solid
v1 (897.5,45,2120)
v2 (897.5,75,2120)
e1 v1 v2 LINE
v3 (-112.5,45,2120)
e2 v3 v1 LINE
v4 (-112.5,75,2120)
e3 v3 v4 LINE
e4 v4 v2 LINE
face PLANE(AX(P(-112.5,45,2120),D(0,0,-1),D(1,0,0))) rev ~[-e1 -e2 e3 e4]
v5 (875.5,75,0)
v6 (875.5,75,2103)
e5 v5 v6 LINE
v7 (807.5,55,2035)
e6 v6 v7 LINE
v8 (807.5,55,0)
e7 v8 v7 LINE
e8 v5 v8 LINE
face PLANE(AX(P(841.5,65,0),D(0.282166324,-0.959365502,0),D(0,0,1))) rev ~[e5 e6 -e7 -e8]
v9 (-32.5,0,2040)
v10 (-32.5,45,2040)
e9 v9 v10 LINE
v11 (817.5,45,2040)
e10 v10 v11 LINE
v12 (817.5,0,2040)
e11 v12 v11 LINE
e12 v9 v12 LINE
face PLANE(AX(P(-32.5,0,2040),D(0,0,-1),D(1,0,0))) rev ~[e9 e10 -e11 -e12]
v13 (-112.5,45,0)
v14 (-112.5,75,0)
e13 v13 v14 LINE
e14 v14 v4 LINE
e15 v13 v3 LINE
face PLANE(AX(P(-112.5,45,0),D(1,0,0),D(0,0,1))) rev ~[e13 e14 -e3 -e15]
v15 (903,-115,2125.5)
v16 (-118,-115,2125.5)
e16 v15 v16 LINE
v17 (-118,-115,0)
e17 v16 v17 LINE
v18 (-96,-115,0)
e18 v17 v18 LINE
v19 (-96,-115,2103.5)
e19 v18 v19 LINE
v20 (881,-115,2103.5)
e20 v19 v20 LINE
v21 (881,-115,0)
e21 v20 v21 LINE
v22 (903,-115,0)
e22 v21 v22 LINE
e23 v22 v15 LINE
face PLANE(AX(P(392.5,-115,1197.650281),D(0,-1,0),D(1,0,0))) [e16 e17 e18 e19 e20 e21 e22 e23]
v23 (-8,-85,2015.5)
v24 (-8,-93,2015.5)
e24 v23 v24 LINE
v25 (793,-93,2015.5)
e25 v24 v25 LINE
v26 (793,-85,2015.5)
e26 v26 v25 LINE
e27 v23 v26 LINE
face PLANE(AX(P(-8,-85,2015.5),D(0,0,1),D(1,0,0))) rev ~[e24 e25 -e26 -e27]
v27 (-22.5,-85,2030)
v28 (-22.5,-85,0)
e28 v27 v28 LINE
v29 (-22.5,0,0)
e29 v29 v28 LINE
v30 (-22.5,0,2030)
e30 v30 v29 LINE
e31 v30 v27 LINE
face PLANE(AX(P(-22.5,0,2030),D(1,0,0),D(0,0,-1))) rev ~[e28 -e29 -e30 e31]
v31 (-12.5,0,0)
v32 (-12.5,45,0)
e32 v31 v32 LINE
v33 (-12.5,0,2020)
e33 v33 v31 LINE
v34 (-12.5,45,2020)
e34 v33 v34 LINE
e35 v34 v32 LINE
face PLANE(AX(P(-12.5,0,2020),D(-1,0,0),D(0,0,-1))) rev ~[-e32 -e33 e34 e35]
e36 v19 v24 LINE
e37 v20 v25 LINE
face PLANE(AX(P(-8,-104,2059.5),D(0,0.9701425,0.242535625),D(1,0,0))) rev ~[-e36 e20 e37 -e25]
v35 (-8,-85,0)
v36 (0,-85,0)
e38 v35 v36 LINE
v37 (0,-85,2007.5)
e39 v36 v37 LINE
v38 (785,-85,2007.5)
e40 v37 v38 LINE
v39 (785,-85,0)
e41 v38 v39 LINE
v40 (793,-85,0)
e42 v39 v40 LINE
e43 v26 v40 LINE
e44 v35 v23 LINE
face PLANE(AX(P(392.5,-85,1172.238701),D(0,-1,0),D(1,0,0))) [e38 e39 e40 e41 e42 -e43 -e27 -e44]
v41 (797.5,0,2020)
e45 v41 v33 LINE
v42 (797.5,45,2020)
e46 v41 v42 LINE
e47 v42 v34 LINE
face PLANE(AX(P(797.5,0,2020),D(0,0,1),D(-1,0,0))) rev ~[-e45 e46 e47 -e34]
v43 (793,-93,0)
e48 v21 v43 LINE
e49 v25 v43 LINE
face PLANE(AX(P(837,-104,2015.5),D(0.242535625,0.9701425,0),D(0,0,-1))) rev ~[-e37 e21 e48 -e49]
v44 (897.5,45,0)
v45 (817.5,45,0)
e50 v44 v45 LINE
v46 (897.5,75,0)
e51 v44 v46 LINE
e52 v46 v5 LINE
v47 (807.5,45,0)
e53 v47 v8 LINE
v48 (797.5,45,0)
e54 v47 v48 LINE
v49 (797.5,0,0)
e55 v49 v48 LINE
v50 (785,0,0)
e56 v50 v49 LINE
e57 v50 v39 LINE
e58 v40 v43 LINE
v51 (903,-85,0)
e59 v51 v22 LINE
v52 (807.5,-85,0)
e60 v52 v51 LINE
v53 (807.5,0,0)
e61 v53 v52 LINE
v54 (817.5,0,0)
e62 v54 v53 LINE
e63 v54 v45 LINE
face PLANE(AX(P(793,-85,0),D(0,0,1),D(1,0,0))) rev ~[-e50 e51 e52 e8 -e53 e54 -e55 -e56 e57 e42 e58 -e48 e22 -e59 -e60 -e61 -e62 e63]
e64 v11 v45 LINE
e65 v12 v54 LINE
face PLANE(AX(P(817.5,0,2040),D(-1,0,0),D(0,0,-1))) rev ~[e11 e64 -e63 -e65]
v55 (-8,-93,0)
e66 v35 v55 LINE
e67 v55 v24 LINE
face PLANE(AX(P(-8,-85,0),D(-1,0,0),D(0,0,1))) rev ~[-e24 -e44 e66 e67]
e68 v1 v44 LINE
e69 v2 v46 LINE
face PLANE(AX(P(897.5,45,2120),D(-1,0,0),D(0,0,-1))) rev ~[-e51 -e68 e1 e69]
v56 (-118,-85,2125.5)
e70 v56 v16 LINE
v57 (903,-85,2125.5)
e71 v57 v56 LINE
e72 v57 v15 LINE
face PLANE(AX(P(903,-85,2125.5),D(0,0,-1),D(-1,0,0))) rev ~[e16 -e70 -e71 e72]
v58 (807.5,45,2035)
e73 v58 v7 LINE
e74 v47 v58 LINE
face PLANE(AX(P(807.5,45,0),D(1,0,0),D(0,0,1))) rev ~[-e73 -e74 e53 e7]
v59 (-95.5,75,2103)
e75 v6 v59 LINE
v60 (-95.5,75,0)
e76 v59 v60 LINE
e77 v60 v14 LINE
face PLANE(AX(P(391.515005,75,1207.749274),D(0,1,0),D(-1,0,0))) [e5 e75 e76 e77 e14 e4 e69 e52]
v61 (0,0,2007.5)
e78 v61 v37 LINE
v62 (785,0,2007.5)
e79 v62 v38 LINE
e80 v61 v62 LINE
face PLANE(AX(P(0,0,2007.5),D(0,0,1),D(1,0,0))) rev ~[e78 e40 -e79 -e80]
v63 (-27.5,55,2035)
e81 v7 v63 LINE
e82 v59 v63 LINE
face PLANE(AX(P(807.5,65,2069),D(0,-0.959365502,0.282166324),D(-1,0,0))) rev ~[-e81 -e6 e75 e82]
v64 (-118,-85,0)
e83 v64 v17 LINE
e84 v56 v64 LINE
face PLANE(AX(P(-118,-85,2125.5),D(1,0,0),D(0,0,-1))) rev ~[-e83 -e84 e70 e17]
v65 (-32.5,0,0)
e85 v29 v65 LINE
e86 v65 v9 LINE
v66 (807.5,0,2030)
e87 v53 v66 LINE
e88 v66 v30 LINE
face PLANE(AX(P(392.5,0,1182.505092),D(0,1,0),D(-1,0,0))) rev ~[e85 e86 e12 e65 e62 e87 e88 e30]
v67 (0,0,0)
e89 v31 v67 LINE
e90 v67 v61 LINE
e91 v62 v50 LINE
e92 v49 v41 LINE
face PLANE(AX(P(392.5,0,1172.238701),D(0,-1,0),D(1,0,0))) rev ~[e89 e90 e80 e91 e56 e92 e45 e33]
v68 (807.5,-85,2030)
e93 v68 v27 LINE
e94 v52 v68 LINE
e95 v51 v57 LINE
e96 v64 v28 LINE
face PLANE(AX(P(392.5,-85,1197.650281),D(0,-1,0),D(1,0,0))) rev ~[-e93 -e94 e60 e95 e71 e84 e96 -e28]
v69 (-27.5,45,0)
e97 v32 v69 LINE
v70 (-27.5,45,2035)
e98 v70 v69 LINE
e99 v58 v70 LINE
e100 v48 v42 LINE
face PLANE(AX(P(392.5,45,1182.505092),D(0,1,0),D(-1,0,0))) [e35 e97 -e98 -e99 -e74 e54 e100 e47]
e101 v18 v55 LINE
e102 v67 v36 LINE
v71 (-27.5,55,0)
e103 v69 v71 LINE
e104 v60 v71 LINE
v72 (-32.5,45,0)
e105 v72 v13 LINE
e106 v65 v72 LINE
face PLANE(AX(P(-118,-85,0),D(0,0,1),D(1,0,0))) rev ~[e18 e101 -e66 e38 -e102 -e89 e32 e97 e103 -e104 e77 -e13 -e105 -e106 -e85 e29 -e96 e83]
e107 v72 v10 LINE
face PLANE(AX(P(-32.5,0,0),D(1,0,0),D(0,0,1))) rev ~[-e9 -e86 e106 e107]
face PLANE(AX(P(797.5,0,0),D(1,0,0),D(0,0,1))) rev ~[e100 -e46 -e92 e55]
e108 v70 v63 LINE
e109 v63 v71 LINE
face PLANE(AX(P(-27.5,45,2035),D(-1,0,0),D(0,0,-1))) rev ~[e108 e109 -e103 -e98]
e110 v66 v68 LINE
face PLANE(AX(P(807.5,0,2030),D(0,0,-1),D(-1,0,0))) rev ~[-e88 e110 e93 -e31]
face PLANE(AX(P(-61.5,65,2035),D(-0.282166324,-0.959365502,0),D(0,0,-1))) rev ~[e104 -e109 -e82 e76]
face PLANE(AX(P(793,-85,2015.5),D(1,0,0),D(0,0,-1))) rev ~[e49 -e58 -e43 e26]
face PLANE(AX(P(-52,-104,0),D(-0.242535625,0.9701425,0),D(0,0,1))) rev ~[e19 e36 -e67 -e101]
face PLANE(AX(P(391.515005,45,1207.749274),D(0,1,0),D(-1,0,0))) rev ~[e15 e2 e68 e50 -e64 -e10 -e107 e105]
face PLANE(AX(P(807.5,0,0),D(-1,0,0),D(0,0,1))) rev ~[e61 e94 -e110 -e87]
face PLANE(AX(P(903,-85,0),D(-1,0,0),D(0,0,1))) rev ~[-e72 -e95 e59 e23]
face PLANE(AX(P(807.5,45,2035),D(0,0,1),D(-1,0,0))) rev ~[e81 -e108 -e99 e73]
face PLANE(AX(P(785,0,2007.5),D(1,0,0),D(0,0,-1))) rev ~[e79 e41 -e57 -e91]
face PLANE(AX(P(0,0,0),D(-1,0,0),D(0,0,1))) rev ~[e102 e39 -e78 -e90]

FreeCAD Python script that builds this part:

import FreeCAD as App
import Part
import Sketcher
Q = App.Units.Quantity


def edges_at(feature, points):
    """Names of the edges that pass closest to the given points."""
    edges = feature.Shape.Edges
    near = lambda p: min(range(len(edges)), key=lambda i: edges[i].distToShape(Part.Vertex(*p))[0])
    return sorted({f"Edge{near(p) + 1}" for p in points})


def add_polygon(sketch, points):
    """Adds a closed chain of lines whose ends are joined by coincident constraints."""
    first, n = sketch.GeometryCount, len(points)
    for a, b in zip(points, points[1:] + points[:1]):
        sketch.addGeometry(Part.LineSegment(App.Vector(*a, 0), App.Vector(*b, 0)), False)
    for i in range(n):
        sketch.addConstraint(Sketcher.Constraint("Coincident", first + i, 2, first + (i + 1) % n, 1))

doc = App.newDocument("Part")
body = doc.addObject("PartDesign::Body", "Body")

# Sketch on XZ plane
sketch1 = body.newObject("Sketcher::SketchObject", "Sketch")
sketch1.AttachmentSupport = (doc.getObject("XZ_Plane"), [""])
sketch1.MapMode = "FlatFace"
add_polygon(sketch1, [(-22.5, 0), (0, 0), (0, 2007.5), (785, 2007.5), (785, 0), (807.5, 0), (807.5, 2030), (-22.5, 2030)])  # lines 0-7
sketch1.addConstraint(Sketcher.Constraint("Horizontal", 0))
sketch1.addConstraint(Sketcher.Constraint("Vertical", 1))
sketch1.addConstraint(Sketcher.Constraint("Horizontal", 2))
sketch1.addConstraint(Sketcher.Constraint("Vertical", 3))
sketch1.addConstraint(Sketcher.Constraint("Horizontal", 4))
sketch1.addConstraint(Sketcher.Constraint("Vertical", 5))
sketch1.addConstraint(Sketcher.Constraint("Horizontal", 6))
sketch1.addConstraint(Sketcher.Constraint("Vertical", 7))
sketch1.addConstraint(Sketcher.Constraint("Coincident", 0, 2, -1, 1))
sketch1.addConstraint(Sketcher.Constraint("PointOnObject", 3, 2, -1))
sketch1.addConstraint(Sketcher.Constraint("Equal", 0, 4))
sketch1.addConstraint(Sketcher.Constraint("DistanceX", 2, 1, 2, 2, Q("785 mm")))
sketch1.addConstraint(Sketcher.Constraint("DistanceX", 6, 2, 6, 1, Q("830 mm")))
sketch1.addConstraint(Sketcher.Constraint("DistanceY", 5, 1, 5, 2, Q("2030 mm")))
sketch1.addConstraint(Sketcher.Constraint("DistanceY", 1, 1, 1, 2, Q("2007.5 mm")))
pad1 = body.newObject("PartDesign::Pad", "Pad")
pad1.Profile = sketch1
pad1.Length = 85

# Sketch on XZ plane
sketch2 = body.newObject("Sketcher::SketchObject", "Sketch001")
sketch2.AttachmentSupport = (doc.getObject("XZ_Plane"), [""])
sketch2.MapMode = "FlatFace"
add_polygon(sketch2, [(-12.5, 0), (-32.5, 0), (-32.5, 2040), (817.5, 2040), (817.5, 0), (797.5, 0), (797.5, 2020), (-12.5, 2020)])  # lines 0-7
sketch2.addConstraint(Sketcher.Constraint("Horizontal", 0))
sketch2.addConstraint(Sketcher.Constraint("Vertical", 1))
sketch2.addConstraint(Sketcher.Constraint("Horizontal", 2))
sketch2.addConstraint(Sketcher.Constraint("Vertical", 3))
sketch2.addConstraint(Sketcher.Constraint("Horizontal", 4))
sketch2.addConstraint(Sketcher.Constraint("Vertical", 5))
sketch2.addConstraint(Sketcher.Constraint("Horizontal", 6))
sketch2.addConstraint(Sketcher.Constraint("Vertical", 7))
sketch2.addConstraint(Sketcher.Constraint("PointOnObject", 0, 2, -1))
sketch2.addConstraint(Sketcher.Constraint("PointOnObject", 3, 2, -1))
sketch2.addConstraint(Sketcher.Constraint("Equal", 0, 4))
sketch2.addConstraint(Sketcher.Constraint("DistanceX", 0, 2, 0, 1, Q("20 mm")))
sketch2.addConstraint(Sketcher.Constraint("DistanceX", 2, 1, 2, 2, Q("850 mm")))
sketch2.addConstraint(Sketcher.Constraint("DistanceY", 1, 1, 1, 2, Q("2040 mm")))
sketch2.addConstraint(Sketcher.Constraint("DistanceY", 5, 1, 5, 2, Q("2020 mm")))
sketch2.addConstraint(Sketcher.Constraint("DistanceX", 0, 2, -1, 1, Q("32.5 mm")))
pad2 = body.newObject("PartDesign::Pad", "Pad001")
pad2.Profile = sketch2
pad2.Length = 45
pad2.Reversed = True

# Sketch on XZ plane
sketch3 = body.newObject("Sketcher::SketchObject", "Sketch002")
sketch3.AttachmentSupport = (doc.getObject("XZ_Plane"), [""])
sketch3.MapMode = "FlatFace"
sketch3.AttachmentOffset = App.Placement(App.Vector(0, 0, -45), App.Rotation())
add_polygon(sketch3, [(897.5, 0), (807.5, 0), (807.5, 2035), (-27.5, 2035), (-27.5, 0), (-112.5, 0), (-112.5, 2120), (897.5, 2120)])  # lines 0-7
sketch3.addConstraint(Sketcher.Constraint("Horizontal", 0))
sketch3.addConstraint(Sketcher.Constraint("Vertical", 1))
sketch3.addConstraint(Sketcher.Constraint("Horizontal", 2))
sketch3.addConstraint(Sketcher.Constraint("Vertical", 3))
sketch3.addConstraint(Sketcher.Constraint("Horizontal", 4))
sketch3.addConstraint(Sketcher.Constraint("Vertical", 5))
sketch3.addConstraint(Sketcher.Constraint("Horizontal", 6))
sketch3.addConstraint(Sketcher.Constraint("Vertical", 7))
sketch3.addConstraint(Sketcher.Constraint("PointOnObject", 0, 2, -1))
sketch3.addConstraint(Sketcher.Constraint("PointOnObject", 3, 2, -1))
sketch3.addConstraint(Sketcher.Constraint("DistanceX", 0, 2, 0, 1, Q("90 mm")))
sketch3.addConstraint(Sketcher.Constraint("DistanceX", 2, 2, 2, 1, Q("835 mm")))
sketch3.addConstraint(Sketcher.Constraint("DistanceX", 4, 2, 4, 1, Q("85 mm")))
sketch3.addConstraint(Sketcher.Constraint("DistanceY", 1, 1, 1, 2, Q("2035 mm")))
sketch3.addConstraint(Sketcher.Constraint("DistanceY", 5, 1, 5, 2, Q("2120 mm")))
sketch3.addConstraint(Sketcher.Constraint("DistanceX", -1, 1, 0, 2, Q("807.5 mm")))
pad3 = body.newObject("PartDesign::Pad", "Pad002")
pad3.Profile = sketch3
pad3.Length = 30
pad3.Reversed = True
doc.recompute()

chamfer = body.newObject("PartDesign::Chamfer", "Chamfer")
chamfer.Base = (pad3, edges_at(pad3, [(390, 75, 2035), (-27.5, 75, 1017.5), (807.5, 75, 1017.5)]))
chamfer.ChamferType = "Two distances"
chamfer.Size = 68
chamfer.Size2 = 20
chamfer.FlipDirection = True

# Sketch on XZ plane
sketch4 = body.newObject("Sketcher::SketchObject", "Sketch003")
sketch4.AttachmentSupport = (doc.getObject("XZ_Plane"), [""])
sketch4.MapMode = "FlatFace"
sketch4.AttachmentOffset = App.Placement(App.Vector(0, 0, 85), App.Rotation())
add_polygon(sketch4, [(-118, 0), (-8, 0), (-8, 2015.5), (793, 2015.5), (793, 0), (903, 0), (903, 2125.5), (-118, 2125.5)])  # lines 0-7
sketch4.addConstraint(Sketcher.Constraint("Horizontal", 0))
sketch4.addConstraint(Sketcher.Constraint("Vertical", 1))
sketch4.addConstraint(Sketcher.Constraint("Horizontal", 2))
sketch4.addConstraint(Sketcher.Constraint("Vertical", 3))
sketch4.addConstraint(Sketcher.Constraint("Horizontal", 4))
sketch4.addConstraint(Sketcher.Constraint("Vertical", 5))
sketch4.addConstraint(Sketcher.Constraint("Horizontal", 6))
sketch4.addConstraint(Sketcher.Constraint("Vertical", 7))
sketch4.addConstraint(Sketcher.Constraint("PointOnObject", 0, 2, -1))
sketch4.addConstraint(Sketcher.Constraint("PointOnObject", 3, 2, -1))
sketch4.addConstraint(Sketcher.Constraint("Equal", 0, 4))
sketch4.addConstraint(Sketcher.Constraint("DistanceX", 0, 1, 0, 2, Q("110 mm")))
sketch4.addConstraint(Sketcher.Constraint("DistanceX", 2, 1, 2, 2, Q("801 mm")))
sketch4.addConstraint(Sketcher.Constraint("DistanceY", 1, 1, 1, 2, Q("2015.5 mm")))
sketch4.addConstraint(Sketcher.Constraint("DistanceY", 5, 1, 5, 2, Q("2125.5 mm")))
sketch4.addConstraint(Sketcher.Constraint("DistanceX", 0, 2, -1, 1, Q("8 mm")))
pad4 = body.newObject("PartDesign::Pad", "Pad003")
pad4.Profile = sketch4
pad4.Length = 30
doc.recompute()

chamfer2 = body.newObject("PartDesign::Chamfer", "Chamfer001")
chamfer2.Base = (pad4, edges_at(pad4, [(793, -115, 1007.75), (392.5, -115, 2015.5), (-8, -115, 1007.75)]))
chamfer2.ChamferType = "Two distances"
chamfer2.Size = 88
chamfer2.Size2 = 22
chamfer2.FlipDirection = True

doc.recompute()
